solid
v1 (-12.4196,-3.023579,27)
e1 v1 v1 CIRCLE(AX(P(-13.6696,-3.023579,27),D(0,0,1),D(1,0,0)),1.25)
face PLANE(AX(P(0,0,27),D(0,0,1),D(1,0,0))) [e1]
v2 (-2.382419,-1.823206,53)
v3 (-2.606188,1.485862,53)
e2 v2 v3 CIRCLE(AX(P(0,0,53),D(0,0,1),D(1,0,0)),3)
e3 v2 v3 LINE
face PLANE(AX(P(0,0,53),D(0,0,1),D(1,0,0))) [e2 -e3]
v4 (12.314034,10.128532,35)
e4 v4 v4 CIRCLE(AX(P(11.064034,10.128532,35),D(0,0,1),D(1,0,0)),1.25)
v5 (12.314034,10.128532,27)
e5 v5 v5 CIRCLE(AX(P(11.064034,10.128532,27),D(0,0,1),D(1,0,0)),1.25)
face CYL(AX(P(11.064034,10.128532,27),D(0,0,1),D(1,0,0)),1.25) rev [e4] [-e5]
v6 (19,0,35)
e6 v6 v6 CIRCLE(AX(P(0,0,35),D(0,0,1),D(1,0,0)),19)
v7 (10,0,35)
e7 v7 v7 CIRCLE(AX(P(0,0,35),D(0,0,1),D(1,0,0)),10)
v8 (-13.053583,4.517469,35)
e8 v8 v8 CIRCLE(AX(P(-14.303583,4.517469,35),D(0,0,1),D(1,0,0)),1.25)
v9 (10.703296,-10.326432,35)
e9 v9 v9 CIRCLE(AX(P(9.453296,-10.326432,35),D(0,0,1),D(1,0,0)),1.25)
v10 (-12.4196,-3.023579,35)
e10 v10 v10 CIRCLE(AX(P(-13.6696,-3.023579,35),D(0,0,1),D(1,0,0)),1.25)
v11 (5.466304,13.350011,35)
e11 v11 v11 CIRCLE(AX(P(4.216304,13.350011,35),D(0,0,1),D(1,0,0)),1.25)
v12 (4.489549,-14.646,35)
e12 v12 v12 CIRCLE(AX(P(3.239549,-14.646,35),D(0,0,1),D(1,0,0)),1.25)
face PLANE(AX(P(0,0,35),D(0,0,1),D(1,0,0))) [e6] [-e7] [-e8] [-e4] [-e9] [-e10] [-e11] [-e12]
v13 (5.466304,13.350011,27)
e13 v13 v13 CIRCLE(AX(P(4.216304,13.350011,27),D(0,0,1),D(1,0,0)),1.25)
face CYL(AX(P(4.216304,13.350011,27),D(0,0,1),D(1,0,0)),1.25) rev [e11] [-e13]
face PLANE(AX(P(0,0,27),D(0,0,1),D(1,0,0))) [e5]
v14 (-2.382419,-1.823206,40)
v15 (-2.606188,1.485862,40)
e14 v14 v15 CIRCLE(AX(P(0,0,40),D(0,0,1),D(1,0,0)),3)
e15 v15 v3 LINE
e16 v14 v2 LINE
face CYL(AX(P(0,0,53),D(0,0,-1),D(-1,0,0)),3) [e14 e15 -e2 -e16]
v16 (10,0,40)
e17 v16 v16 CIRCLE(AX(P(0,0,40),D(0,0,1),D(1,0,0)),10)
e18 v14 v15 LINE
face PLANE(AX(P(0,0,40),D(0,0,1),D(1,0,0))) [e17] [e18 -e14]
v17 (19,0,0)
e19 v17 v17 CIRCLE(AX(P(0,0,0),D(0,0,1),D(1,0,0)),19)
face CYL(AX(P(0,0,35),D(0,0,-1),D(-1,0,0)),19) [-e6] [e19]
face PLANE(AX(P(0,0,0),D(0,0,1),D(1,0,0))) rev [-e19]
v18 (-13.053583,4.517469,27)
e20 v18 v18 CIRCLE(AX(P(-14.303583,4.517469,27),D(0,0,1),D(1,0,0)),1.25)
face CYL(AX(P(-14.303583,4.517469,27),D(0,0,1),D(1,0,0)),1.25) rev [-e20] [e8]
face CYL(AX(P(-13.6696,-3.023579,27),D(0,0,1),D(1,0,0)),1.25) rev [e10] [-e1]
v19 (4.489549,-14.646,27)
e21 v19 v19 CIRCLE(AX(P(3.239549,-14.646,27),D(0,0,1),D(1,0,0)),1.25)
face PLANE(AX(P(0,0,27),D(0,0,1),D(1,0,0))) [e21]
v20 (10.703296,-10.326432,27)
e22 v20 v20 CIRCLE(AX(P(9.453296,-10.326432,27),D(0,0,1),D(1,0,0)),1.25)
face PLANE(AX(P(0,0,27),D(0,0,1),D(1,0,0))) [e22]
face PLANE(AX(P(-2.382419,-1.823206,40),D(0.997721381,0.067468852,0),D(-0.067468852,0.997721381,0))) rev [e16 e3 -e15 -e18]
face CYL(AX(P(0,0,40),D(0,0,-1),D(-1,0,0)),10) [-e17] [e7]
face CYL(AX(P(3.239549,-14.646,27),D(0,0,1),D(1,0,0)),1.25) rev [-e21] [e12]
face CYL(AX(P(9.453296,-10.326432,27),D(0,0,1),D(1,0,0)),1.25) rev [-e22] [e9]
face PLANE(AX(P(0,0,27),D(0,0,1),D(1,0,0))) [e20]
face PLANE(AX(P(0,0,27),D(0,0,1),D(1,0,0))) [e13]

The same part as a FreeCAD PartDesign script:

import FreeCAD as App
import Part
import Sketcher

doc = App.newDocument("Part")
body = doc.addObject("PartDesign::Body", "Body")

# Sketch on XY plane
sketch1 = body.newObject("Sketcher::SketchObject", "Sketch")
sketch1.AttachmentSupport = (doc.getObject("XY_Plane"), [""])
sketch1.MapMode = "FlatFace"
sketch1.addGeometry(Part.Circle(App.Vector(0, 0, 0), App.Vector(0, 0, 1), 19), False)
sketch1.addConstraint(Sketcher.Constraint("Coincident", 0, 3, -1, 1))
sketch1.addConstraint(Sketcher.Constraint("Diameter", 0, 38.0))
pad1 = body.newObject("PartDesign::Pad", "Pad")
pad1.Profile = sketch1
pad1.Length = 35

# Sketch on XY plane
sketch2 = body.newObject("Sketcher::SketchObject", "Sketch001")
sketch2.AttachmentSupport = (doc.getObject("XY_Plane"), [""])
sketch2.MapMode = "FlatFace"
sketch2.AttachmentOffset = App.Placement(App.Vector(0, 0, 35), App.Rotation())
sketch2.addGeometry(Part.Circle(App.Vector(0, 0, 0), App.Vector(0, 0, 1), 10), False)
sketch2.addConstraint(Sketcher.Constraint("Coincident", 0, 3, -1, 1))
sketch2.addConstraint(Sketcher.Constraint("Diameter", 0, 20.0))
pad2 = body.newObject("PartDesign::Pad", "Pad001")
pad2.Profile = sketch2
pad2.Length = 5

# Sketch on XY plane
sketch3 = body.newObject("Sketcher::SketchObject", "Sketch002")
sketch3.AttachmentSupport = (doc.getObject("XY_Plane"), [""])
sketch3.MapMode = "FlatFace"
sketch3.AttachmentOffset = App.Placement(App.Vector(0, 0, 40), App.Rotation())
sketch3.addGeometry(Part.Circle(App.Vector(0, 0, 0), App.Vector(0, 0, 1), 3), False)
sketch3.addConstraint(Sketcher.Constraint("Coincident", 0, 3, -1, 1))
sketch3.addConstraint(Sketcher.Constraint("Diameter", 0, 6.0))
pad3 = body.newObject("PartDesign::Pad", "Pad002")
pad3.Profile = sketch3
pad3.Length = 13

# Sketch on XY plane
sketch4 = body.newObject("Sketcher::SketchObject", "Sketch003")
sketch4.AttachmentSupport = (doc.getObject("XY_Plane"), [""])
sketch4.MapMode = "FlatFace"
sketch4.AttachmentOffset = App.Placement(App.Vector(0, 0, 35), App.Rotation())
sketch4.addGeometry(Part.Circle(App.Vector(3.239549, -14.646, 0), App.Vector(0, 0, 1), 1.25), False)
sketch4.addGeometry(Part.Circle(App.Vector(9.453296, -10.326432, 0), App.Vector(0, 0, 1), 1.25), False)
sketch4.addGeometry(Part.Circle(App.Vector(-13.6696, -3.023579, 0), App.Vector(0, 0, 1), 1.25), False)
sketch4.addGeometry(Part.Circle(App.Vector(-14.303583, 4.517469, 0), App.Vector(0, 0, 1), 1.25), False)
sketch4.addGeometry(Part.Circle(App.Vector(4.216304, 13.350011, 0), App.Vector(0, 0, 1), 1.25), False)
sketch4.addGeometry(Part.Circle(App.Vector(11.064034, 10.128532, 0), App.Vector(0, 0, 1), 1.25), False)
sketch4.addConstraint(Sketcher.Constraint("Equal", 0, 1))
sketch4.addConstraint(Sketcher.Constraint("Equal", 1, 2))
sketch4.addConstraint(Sketcher.Constraint("Equal", 2, 3))
sketch4.addConstraint(Sketcher.Constraint("Equal", 3, 4))
sketch4.addConstraint(Sketcher.Constraint("Equal", 4, 5))
sketch4.addConstraint(Sketcher.Constraint("Diameter", 0, 2.5))
sketch4.addConstraint(Sketcher.Constraint("DistanceY", 0, 3, -1, 1, 14.646))
sketch4.addConstraint(Sketcher.Constraint("DistanceX", 2, 3, -1, 1, 13.6696))
sketch4.addConstraint(Sketcher.Constraint("DistanceY", 1, 3, 3, 3, 14.8439))
sketch4.addConstraint(Sketcher.Constraint("DistanceX", -1, 1, 0, 3, 3.239549))
sketch4.addConstraint(Sketcher.Constraint("DistanceY", 1, 3, -1, 1, 10.326432))
sketch4.addConstraint(Sketcher.Constraint("DistanceY", 2, 3, -1, 1, 3.023579))
sketch4.addConstraint(Sketcher.Constraint("DistanceY", -1, 1, 4, 3, 13.350011))
sketch4.addConstraint(Sketcher.Constraint("DistanceY", -1, 1, 5, 3, 10.128532))
sketch4.addConstraint(Sketcher.Constraint("DistanceX", 3, 3, 0, 3, 17.543132))
sketch4.addConstraint(Sketcher.Constraint("DistanceX", 3, 3, 1, 3, 23.756879))
sketch4.addConstraint(Sketcher.Constraint("DistanceX", 4, 3, 5, 3, 6.84773))
sketch4.addConstraint(Sketcher.Constraint("DistanceX", -1, 1, 4, 3, 4.216304))
pocket1 = body.newObject("PartDesign::Pocket", "Pocket")
pocket1.Profile = sketch4
pocket1.Length = 8

# Sketch on XY plane
sketch5 = body.newObject("Sketcher::SketchObject", "Sketch004")
sketch5.AttachmentSupport = (doc.getObject("XY_Plane"), [""])
sketch5.MapMode = "FlatFace"
sketch5.AttachmentOffset = App.Placement(App.Vector(0, 0, 53), App.Rotation())
sketch5.addGeometry(Part.LineSegment(App.Vector(-2.382419, -1.823206, 0), App.Vector(-2.606188, 1.485862, 0)), False)
sketch5.addGeometry(Part.LineSegment(App.Vector(-2.606188, 1.485862, 0), App.Vector(-6.139376, 1.246937, 0)), False)
sketch5.addGeometry(Part.LineSegment(App.Vector(-6.139376, 1.246937, 0), App.Vector(-5.915607, -2.06213, 0)), False)
sketch5.addGeometry(Part.LineSegment(App.Vector(-5.915607, -2.06213, 0), App.Vector(-2.382419, -1.823206, 0)), False)
sketch5.addConstraint(Sketcher.Constraint("Coincident", 0, 2, 1, 1))
sketch5.addConstraint(Sketcher.Constraint("Coincident", 1, 2, 2, 1))
sketch5.addConstraint(Sketcher.Constraint("Coincident", 2, 2, 3, 1))
sketch5.addConstraint(Sketcher.Constraint("Coincident", 3, 2, 0, 1))
sketch5.addConstraint(Sketcher.Constraint("Perpendicular", 0, 1))
sketch5.addConstraint(Sketcher.Constraint("Perpendicular", 1, 2))
sketch5.addConstraint(Sketcher.Constraint("Perpendicular", 2, 3))
sketch5.addConstraint(Sketcher.Constraint("DistanceY", -1, 1, 0, 2, 1.485862))
sketch5.addConstraint(Sketcher.Constraint("DistanceY", 2, 2, -1, 1, 2.06213))
sketch5.addConstraint(Sketcher.Constraint("DistanceX", 3, 2, -1, 1, 2.382419))
sketch5.addConstraint(Sketcher.Constraint("DistanceX", 1, 2, 0, 2, 3.533188))
sketch5.addConstraint(Sketcher.Constraint("DistanceX", 1, 2, 2, 2, 0.223769))
pocket2 = body.newObject("PartDesign::Pocket", "Pocket001")
pocket2.Profile = sketch5
pocket2.Length = 13

doc.recompute()
